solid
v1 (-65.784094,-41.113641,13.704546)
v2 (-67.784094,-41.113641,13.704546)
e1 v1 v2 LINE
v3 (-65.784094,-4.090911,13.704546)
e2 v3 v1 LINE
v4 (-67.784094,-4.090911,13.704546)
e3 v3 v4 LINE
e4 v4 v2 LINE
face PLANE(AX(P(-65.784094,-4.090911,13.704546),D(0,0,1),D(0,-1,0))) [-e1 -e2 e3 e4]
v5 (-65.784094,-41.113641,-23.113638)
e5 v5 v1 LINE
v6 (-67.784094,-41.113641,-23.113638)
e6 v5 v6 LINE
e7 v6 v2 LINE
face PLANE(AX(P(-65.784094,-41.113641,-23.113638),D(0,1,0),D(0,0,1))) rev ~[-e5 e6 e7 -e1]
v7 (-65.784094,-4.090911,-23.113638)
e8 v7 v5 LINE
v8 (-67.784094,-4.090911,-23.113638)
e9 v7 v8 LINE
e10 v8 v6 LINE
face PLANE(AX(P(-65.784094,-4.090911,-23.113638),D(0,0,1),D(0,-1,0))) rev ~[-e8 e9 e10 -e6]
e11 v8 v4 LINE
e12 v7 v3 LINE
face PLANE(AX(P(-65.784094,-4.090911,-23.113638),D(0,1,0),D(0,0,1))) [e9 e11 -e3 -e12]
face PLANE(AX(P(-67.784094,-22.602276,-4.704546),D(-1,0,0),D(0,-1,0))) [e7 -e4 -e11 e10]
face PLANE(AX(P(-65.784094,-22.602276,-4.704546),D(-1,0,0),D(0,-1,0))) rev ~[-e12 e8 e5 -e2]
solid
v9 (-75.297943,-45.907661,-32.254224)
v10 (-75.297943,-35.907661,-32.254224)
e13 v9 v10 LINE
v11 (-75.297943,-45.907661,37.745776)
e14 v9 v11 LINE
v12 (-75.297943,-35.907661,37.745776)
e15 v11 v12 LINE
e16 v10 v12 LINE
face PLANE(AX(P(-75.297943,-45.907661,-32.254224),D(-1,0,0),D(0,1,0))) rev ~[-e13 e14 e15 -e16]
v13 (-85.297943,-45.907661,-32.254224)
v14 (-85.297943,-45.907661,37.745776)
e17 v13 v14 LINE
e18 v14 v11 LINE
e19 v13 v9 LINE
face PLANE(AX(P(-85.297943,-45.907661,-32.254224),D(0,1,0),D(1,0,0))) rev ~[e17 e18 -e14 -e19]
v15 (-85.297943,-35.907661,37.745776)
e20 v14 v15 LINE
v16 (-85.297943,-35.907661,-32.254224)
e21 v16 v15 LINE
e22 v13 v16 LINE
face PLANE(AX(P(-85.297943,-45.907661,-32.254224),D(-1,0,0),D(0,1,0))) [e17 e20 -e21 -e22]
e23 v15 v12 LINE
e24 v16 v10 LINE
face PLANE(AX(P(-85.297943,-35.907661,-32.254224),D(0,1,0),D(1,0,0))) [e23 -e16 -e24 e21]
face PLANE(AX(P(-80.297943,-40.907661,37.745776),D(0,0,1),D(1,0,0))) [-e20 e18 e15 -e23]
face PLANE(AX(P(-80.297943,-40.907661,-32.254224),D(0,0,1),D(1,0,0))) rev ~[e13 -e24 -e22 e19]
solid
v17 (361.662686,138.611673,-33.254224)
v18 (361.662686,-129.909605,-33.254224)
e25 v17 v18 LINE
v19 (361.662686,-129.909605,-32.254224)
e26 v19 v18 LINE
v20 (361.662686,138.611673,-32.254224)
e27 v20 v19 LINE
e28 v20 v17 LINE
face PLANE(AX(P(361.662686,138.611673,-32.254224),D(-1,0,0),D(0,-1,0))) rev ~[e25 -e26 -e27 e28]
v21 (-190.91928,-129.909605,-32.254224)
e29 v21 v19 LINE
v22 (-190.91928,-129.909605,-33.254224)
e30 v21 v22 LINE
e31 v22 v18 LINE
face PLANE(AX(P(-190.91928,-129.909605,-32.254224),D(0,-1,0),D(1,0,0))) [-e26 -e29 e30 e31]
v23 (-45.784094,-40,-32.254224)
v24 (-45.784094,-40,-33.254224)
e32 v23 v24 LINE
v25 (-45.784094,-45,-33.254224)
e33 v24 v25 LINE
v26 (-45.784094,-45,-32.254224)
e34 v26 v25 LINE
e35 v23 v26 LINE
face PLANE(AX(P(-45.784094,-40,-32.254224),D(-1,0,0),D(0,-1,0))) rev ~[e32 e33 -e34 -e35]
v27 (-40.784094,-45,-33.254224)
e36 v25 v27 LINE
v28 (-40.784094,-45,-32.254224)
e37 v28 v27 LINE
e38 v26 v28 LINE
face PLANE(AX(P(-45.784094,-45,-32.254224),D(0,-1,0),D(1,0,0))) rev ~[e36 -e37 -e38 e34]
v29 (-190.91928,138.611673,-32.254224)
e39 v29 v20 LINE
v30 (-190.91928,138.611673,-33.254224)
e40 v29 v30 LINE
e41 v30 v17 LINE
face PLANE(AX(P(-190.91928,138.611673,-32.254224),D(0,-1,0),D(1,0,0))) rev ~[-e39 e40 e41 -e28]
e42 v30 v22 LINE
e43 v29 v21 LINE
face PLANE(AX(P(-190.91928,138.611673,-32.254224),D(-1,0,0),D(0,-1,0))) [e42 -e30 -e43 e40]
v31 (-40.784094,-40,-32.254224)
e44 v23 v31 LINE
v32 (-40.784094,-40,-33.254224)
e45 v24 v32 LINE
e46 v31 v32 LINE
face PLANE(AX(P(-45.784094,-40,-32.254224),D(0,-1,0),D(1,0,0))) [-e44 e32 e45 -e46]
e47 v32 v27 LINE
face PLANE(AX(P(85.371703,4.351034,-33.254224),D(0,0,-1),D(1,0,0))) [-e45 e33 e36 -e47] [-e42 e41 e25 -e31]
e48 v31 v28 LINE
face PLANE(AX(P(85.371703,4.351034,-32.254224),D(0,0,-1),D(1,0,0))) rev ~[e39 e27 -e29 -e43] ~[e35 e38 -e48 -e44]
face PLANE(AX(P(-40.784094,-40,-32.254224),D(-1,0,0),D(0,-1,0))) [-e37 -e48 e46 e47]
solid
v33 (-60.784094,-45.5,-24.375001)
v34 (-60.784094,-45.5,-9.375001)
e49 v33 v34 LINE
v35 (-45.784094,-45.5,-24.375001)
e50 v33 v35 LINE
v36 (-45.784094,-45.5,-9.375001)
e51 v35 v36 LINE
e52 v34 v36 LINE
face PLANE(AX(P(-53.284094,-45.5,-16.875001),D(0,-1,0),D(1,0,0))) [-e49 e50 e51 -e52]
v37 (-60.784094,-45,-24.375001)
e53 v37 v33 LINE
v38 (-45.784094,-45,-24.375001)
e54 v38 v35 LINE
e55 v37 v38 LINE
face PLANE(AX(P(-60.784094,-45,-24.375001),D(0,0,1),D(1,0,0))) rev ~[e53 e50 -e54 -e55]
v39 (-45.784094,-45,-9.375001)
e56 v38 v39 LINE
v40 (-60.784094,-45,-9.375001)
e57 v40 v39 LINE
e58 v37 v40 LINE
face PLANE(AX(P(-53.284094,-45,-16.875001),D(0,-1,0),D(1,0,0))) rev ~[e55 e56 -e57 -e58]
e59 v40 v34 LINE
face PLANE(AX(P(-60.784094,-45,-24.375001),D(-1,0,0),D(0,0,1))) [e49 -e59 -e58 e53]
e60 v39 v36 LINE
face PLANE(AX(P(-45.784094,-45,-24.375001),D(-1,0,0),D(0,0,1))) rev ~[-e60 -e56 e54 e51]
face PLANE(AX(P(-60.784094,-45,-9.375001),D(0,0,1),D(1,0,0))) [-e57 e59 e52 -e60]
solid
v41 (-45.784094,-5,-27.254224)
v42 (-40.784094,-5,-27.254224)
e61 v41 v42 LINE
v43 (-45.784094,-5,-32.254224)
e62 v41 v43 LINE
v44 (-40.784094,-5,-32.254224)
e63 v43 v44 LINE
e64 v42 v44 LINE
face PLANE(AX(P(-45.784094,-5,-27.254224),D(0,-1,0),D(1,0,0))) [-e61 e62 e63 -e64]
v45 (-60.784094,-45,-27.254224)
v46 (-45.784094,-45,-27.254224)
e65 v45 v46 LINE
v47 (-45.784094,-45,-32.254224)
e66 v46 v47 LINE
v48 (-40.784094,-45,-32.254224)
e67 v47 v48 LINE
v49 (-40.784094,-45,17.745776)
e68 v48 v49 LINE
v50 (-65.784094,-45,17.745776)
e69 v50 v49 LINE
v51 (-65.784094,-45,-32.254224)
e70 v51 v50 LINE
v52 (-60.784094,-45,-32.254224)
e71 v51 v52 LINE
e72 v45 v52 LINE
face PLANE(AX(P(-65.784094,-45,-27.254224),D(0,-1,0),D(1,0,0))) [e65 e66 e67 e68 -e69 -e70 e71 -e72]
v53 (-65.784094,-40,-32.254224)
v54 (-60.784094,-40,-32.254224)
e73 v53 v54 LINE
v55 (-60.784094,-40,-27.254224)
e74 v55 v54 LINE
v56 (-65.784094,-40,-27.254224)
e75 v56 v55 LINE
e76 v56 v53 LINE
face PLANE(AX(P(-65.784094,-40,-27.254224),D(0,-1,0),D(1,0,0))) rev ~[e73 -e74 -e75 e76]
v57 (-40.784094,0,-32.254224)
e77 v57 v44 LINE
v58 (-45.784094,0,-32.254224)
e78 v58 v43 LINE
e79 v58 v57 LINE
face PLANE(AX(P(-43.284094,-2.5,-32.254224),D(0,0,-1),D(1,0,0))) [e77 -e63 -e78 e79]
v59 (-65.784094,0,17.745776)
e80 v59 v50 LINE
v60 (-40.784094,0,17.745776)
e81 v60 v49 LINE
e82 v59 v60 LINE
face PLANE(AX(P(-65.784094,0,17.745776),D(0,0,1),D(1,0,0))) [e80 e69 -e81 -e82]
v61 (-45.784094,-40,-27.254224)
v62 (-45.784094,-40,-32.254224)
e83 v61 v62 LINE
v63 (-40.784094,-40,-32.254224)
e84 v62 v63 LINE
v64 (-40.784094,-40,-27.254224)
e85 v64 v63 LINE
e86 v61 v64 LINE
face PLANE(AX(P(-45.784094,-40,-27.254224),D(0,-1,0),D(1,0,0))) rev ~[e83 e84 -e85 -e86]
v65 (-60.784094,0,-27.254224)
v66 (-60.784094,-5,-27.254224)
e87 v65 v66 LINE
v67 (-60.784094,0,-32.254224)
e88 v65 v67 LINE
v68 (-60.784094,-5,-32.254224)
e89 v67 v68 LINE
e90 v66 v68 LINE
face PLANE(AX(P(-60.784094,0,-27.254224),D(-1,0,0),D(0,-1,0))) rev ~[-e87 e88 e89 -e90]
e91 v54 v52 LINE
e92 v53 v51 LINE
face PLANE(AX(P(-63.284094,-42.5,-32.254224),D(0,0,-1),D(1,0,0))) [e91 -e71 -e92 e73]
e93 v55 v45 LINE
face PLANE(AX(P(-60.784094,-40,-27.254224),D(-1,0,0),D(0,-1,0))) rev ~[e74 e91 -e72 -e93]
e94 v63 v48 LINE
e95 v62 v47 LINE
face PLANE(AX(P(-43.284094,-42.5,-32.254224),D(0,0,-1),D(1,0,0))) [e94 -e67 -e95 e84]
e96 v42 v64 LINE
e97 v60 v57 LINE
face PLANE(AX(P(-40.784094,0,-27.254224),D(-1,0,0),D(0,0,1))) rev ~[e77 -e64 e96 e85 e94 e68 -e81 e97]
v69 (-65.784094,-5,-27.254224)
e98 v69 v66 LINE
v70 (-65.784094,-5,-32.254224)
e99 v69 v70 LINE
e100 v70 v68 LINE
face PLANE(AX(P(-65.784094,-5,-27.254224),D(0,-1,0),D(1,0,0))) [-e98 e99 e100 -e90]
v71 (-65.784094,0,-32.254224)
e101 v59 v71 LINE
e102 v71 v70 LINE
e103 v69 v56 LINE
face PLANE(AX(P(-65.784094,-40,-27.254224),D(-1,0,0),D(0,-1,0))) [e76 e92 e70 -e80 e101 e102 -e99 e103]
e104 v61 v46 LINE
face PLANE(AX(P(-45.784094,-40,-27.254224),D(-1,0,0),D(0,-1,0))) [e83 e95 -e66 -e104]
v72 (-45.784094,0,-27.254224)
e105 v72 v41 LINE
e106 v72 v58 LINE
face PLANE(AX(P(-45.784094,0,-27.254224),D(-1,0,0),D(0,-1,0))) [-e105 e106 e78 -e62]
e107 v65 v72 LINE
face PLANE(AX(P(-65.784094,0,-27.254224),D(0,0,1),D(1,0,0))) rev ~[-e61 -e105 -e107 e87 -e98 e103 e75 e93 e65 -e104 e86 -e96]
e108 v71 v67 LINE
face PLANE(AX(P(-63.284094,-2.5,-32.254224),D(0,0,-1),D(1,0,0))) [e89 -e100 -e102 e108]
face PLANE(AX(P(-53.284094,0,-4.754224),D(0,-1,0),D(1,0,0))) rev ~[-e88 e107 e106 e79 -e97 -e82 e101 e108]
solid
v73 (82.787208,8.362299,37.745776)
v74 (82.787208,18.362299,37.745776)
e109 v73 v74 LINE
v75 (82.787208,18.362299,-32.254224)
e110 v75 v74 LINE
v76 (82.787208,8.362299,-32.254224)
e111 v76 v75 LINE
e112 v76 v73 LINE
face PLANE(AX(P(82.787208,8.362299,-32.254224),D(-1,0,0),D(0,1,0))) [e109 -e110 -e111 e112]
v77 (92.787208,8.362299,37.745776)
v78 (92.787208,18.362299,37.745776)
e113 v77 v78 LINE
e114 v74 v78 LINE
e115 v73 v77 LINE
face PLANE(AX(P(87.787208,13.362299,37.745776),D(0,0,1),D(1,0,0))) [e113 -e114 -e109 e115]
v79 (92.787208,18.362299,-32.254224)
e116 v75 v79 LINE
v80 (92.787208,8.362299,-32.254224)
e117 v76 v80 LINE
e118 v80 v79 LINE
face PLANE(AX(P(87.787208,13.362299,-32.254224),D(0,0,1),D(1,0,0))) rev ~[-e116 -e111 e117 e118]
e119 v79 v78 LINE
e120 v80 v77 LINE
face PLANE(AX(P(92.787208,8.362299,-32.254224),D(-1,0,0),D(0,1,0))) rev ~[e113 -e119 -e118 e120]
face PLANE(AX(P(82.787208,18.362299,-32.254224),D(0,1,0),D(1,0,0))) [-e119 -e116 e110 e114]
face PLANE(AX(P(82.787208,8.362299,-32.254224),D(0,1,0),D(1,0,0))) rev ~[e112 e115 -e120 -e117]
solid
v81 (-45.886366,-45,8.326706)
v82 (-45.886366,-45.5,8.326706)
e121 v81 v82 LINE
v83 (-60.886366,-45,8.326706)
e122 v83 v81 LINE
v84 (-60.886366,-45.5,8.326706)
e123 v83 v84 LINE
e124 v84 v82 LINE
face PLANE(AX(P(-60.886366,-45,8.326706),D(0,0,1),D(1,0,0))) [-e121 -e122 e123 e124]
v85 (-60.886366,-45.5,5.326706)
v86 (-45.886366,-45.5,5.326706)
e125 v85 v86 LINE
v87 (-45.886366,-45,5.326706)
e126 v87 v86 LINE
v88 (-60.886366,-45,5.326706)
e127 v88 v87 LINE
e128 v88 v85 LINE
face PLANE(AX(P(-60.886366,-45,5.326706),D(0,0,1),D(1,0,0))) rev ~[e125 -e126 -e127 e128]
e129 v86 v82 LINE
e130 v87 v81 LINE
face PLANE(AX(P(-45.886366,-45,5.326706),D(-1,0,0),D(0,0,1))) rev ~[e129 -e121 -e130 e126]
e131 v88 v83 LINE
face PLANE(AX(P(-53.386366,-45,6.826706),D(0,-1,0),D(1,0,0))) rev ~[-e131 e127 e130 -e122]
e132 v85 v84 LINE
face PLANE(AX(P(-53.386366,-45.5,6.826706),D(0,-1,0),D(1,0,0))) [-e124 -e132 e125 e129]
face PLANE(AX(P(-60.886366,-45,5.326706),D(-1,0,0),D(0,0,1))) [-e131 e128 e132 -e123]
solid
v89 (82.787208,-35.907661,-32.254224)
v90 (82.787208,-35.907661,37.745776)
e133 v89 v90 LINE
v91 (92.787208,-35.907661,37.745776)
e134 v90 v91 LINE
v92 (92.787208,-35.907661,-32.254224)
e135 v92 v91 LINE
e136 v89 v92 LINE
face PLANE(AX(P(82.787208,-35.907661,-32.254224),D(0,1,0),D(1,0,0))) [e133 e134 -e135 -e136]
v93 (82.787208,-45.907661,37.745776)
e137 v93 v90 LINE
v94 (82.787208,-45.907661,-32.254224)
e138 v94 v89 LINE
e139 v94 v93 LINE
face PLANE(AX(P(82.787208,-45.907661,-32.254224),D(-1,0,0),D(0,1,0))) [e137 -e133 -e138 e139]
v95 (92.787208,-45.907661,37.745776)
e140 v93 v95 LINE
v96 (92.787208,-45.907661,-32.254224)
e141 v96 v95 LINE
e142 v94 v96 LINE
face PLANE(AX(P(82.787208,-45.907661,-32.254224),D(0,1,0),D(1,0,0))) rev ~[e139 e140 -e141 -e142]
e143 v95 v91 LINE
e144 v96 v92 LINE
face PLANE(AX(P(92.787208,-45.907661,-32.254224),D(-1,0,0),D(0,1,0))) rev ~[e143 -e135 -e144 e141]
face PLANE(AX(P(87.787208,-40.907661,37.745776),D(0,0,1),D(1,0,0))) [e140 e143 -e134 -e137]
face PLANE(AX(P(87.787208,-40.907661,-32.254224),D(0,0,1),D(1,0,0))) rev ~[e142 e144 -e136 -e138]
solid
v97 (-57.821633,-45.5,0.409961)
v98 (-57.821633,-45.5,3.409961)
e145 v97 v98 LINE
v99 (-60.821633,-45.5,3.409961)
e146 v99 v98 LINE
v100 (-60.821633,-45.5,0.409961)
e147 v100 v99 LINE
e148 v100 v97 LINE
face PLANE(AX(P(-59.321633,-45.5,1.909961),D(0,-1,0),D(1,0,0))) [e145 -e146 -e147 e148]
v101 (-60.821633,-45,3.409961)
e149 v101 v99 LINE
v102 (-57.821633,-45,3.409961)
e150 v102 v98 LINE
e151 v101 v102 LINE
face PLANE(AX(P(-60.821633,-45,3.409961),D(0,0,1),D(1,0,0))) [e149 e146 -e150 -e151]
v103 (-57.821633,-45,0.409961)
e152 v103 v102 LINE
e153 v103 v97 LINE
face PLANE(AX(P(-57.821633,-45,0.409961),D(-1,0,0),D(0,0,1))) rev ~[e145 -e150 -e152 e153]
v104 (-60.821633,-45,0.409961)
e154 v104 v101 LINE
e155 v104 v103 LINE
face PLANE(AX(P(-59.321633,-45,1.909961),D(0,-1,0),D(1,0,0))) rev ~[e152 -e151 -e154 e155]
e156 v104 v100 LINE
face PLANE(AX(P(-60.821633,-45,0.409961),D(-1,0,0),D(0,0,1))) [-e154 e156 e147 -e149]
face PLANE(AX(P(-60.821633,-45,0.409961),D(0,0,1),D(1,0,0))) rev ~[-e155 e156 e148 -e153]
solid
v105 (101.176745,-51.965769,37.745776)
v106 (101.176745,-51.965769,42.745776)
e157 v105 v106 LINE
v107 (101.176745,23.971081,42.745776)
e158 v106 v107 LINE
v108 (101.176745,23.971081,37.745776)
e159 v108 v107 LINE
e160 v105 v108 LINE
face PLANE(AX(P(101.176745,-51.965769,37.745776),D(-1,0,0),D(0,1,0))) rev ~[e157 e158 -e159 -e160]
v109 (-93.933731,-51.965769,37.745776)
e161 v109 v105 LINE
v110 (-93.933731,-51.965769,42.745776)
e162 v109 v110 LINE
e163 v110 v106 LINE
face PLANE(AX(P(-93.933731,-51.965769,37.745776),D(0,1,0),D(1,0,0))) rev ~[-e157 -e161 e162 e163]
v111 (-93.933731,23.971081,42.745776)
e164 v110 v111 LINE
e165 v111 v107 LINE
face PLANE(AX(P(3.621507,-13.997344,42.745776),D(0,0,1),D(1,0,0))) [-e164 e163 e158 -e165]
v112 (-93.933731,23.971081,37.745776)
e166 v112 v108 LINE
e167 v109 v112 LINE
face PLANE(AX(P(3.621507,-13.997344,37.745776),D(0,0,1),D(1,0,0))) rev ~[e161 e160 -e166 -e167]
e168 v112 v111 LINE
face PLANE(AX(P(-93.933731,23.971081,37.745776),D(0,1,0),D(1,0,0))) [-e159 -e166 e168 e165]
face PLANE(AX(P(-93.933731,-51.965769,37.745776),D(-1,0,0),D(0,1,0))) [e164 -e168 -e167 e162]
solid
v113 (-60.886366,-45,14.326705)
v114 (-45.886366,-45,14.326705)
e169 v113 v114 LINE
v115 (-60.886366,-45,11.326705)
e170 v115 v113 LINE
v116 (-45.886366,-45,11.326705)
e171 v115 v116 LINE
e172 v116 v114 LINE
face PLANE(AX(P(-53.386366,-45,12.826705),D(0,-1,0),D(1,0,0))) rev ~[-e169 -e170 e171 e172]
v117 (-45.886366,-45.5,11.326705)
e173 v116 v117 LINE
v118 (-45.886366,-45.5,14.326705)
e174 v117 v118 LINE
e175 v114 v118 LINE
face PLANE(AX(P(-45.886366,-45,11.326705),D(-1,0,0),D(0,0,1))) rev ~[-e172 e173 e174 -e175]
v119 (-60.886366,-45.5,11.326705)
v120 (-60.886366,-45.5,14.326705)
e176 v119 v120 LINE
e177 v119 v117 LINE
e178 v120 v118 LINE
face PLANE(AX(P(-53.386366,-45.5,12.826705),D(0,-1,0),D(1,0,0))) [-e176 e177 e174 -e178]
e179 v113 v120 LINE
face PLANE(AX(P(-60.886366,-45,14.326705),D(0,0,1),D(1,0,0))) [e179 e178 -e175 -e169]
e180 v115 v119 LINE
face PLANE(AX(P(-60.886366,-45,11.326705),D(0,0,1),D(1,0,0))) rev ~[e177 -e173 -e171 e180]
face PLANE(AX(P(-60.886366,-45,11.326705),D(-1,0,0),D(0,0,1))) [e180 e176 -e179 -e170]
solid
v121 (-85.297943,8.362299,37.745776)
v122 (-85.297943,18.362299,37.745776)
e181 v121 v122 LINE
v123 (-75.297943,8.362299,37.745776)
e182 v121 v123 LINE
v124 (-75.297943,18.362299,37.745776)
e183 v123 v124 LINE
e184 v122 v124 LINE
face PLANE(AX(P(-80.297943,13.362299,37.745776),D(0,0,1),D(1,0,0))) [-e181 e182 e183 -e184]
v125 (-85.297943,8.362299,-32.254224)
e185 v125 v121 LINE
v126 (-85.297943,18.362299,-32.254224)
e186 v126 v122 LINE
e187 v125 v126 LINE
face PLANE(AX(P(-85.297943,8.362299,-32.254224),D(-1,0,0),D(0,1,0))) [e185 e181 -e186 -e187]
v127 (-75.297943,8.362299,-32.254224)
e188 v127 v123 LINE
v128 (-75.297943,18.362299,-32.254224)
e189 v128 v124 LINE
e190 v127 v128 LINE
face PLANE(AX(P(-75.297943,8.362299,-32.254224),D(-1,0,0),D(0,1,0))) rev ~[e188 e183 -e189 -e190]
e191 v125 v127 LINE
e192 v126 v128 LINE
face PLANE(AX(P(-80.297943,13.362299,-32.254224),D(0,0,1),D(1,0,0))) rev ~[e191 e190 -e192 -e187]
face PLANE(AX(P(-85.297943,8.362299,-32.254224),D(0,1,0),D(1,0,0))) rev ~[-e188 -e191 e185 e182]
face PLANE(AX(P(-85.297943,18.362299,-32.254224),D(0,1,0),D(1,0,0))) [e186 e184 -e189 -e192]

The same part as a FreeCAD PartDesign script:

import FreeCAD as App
import Part
import Sketcher
from FreeCAD import Vector
Q = App.Units.Quantity

doc = App.newDocument("Part")
body = doc.addObject("PartDesign::Body", "Body")

# Sketch on XZ plane
sketch1 = body.newObject("Sketcher::SketchObject", "Sketch")
sketch1.AttachmentSupport = (doc.getObject("XZ_Plane"), [""])
sketch1.MapMode = "FlatFace"
sketch1.addGeometry(Part.LineSegment(Vector(-66, 18, 0), Vector(-66, -27, 0)), False)
sketch1.addGeometry(Part.LineSegment(Vector(-66, -27, 0), Vector(-41, -27, 0)), False)
sketch1.addGeometry(Part.LineSegment(Vector(-41, -27, 0), Vector(-41, 18, 0)), False)
sketch1.addGeometry(Part.LineSegment(Vector(-41, 18, 0), Vector(-66, 18, 0)), False)
sketch1.addConstraint(Sketcher.Constraint("Coincident", 0, 2, 1, 1))
sketch1.addConstraint(Sketcher.Constraint("Coincident", 1, 2, 2, 1))
sketch1.addConstraint(Sketcher.Constraint("Coincident", 2, 2, 3, 1))
sketch1.addConstraint(Sketcher.Constraint("Coincident", 3, 2, 0, 1))
sketch1.addConstraint(Sketcher.Constraint("Vertical", 0))
sketch1.addConstraint(Sketcher.Constraint("Horizontal", 1))
sketch1.addConstraint(Sketcher.Constraint("Vertical", 2))
sketch1.addConstraint(Sketcher.Constraint("Horizontal", 3))
sketch1.addConstraint(Sketcher.Constraint("DistanceX", 1, 1, 1, 2, Q("25 mm")))
sketch1.addConstraint(Sketcher.Constraint("DistanceY", 0, 2, 0, 1, Q("45 mm")))
sketch1.addConstraint(Sketcher.Constraint("DistanceX", 0, 2, -1, 1, Q("65.784094 mm")))
sketch1.addConstraint(Sketcher.Constraint("DistanceY", 0, 2, -1, 1, Q("27.254224 mm")))
pad1 = body.newObject("PartDesign::Pad", "Pad")
pad1.Profile = sketch1
pad1.Length = 45

# Sketch on XY plane
sketch2 = body.newObject("Sketcher::SketchObject", "Sketch001")
sketch2.AttachmentSupport = (doc.getObject("XY_Plane"), [""])
sketch2.MapMode = "FlatFace"
sketch2.AttachmentOffset = App.Placement(Vector(0, 0, -27.254224), App.Rotation())
sketch2.addGeometry(Part.LineSegment(Vector(-65.8, -45, 0), Vector(-65.8, -40, 0)), False)
sketch2.addGeometry(Part.LineSegment(Vector(-65.8, -40, 0), Vector(-60.8, -40, 0)), False)
sketch2.addGeometry(Part.LineSegment(Vector(-60.8, -40, 0), Vector(-60.8, -45, 0)), False)
sketch2.addGeometry(Part.LineSegment(Vector(-60.8, -45, 0), Vector(-65.8, -45, 0)), False)
sketch2.addGeometry(Part.LineSegment(Vector(-45.8, -45, 0), Vector(-45.8, -40, 0)), False)
sketch2.addGeometry(Part.LineSegment(Vector(-45.8, -40, 0), Vector(-40.8, -40, 0)), False)
sketch2.addGeometry(Part.LineSegment(Vector(-40.8, -40, 0), Vector(-40.8, -45, 0)), False)
sketch2.addGeometry(Part.LineSegment(Vector(-40.8, -45, 0), Vector(-45.8, -45, 0)), False)
sketch2.addGeometry(Part.LineSegment(Vector(-65.8, -5, 0), Vector(-65.8, 0, 0)), False)
sketch2.addGeometry(Part.LineSegment(Vector(-65.8, 0, 0), Vector(-60.8, 0, 0)), False)
sketch2.addGeometry(Part.LineSegment(Vector(-60.8, 0, 0), Vector(-60.8, -5, 0)), False)
sketch2.addGeometry(Part.LineSegment(Vector(-60.8, -5, 0), Vector(-65.8, -5, 0)), False)
sketch2.addGeometry(Part.LineSegment(Vector(-45.8, -5, 0), Vector(-45.8, 0, 0)), False)
sketch2.addGeometry(Part.LineSegment(Vector(-45.8, 0, 0), Vector(-40.8, 0, 0)), False)
sketch2.addGeometry(Part.LineSegment(Vector(-40.8, 0, 0), Vector(-40.8, -5, 0)), False)
sketch2.addGeometry(Part.LineSegment(Vector(-40.8, -5, 0), Vector(-45.8, -5, 0)), False)
sketch2.addConstraint(Sketcher.Constraint("Coincident", 0, 2, 1, 1))
sketch2.addConstraint(Sketcher.Constraint("Coincident", 1, 2, 2, 1))
sketch2.addConstraint(Sketcher.Constraint("Coincident", 2, 2, 3, 1))
sketch2.addConstraint(Sketcher.Constraint("Coincident", 3, 2, 0, 1))
sketch2.addConstraint(Sketcher.Constraint("Coincident", 4, 2, 5, 1))
sketch2.addConstraint(Sketcher.Constraint("Coincident", 5, 2, 6, 1))
sketch2.addConstraint(Sketcher.Constraint("Coincident", 6, 2, 7, 1))
sketch2.addConstraint(Sketcher.Constraint("Coincident", 7, 2, 4, 1))
sketch2.addConstraint(Sketcher.Constraint("Coincident", 8, 2, 9, 1))
sketch2.addConstraint(Sketcher.Constraint("Coincident", 9, 2, 10, 1))
sketch2.addConstraint(Sketcher.Constraint("Coincident", 10, 2, 11, 1))
sketch2.addConstraint(Sketcher.Constraint("Coincident", 11, 2, 8, 1))
sketch2.addConstraint(Sketcher.Constraint("Coincident", 12, 2, 13, 1))
sketch2.addConstraint(Sketcher.Constraint("Coincident", 13, 2, 14, 1))
sketch2.addConstraint(Sketcher.Constraint("Coincident", 14, 2, 15, 1))
sketch2.addConstraint(Sketcher.Constraint("Coincident", 15, 2, 12, 1))
sketch2.addConstraint(Sketcher.Constraint("Vertical", 0))
sketch2.addConstraint(Sketcher.Constraint("Horizontal", 1))
sketch2.addConstraint(Sketcher.Constraint("Vertical", 2))
sketch2.addConstraint(Sketcher.Constraint("Horizontal", 3))
sketch2.addConstraint(Sketcher.Constraint("Vertical", 4))
sketch2.addConstraint(Sketcher.Constraint("Horizontal", 5))
sketch2.addConstraint(Sketcher.Constraint("Vertical", 6))
sketch2.addConstraint(Sketcher.Constraint("Horizontal", 7))
sketch2.addConstraint(Sketcher.Constraint("Vertical", 8))
sketch2.addConstraint(Sketcher.Constraint("Horizontal", 9))
sketch2.addConstraint(Sketcher.Constraint("Vertical", 10))
sketch2.addConstraint(Sketcher.Constraint("Horizontal", 11))
sketch2.addConstraint(Sketcher.Constraint("Vertical", 12))
sketch2.addConstraint(Sketcher.Constraint("Horizontal", 13))
sketch2.addConstraint(Sketcher.Constraint("Vertical", 14))
sketch2.addConstraint(Sketcher.Constraint("Horizontal", 15))
sketch2.addConstraint(Sketcher.Constraint("PointOnObject", 8, 2, -1))
sketch2.addConstraint(Sketcher.Constraint("PointOnObject", 12, 2, -1))
sketch2.addConstraint(Sketcher.Constraint("Horizontal", 1, 2, 4, 2))
sketch2.addConstraint(Sketcher.Constraint("Horizontal", 3, 2, 6, 2))
sketch2.addConstraint(Sketcher.Constraint("Horizontal", 11, 2, 14, 2))
sketch2.addConstraint(Sketcher.Constraint("Vertical", 3, 2, 8, 2))
sketch2.addConstraint(Sketcher.Constraint("Vertical", 2, 2, 9, 2))
sketch2.addConstraint(Sketcher.Constraint("Vertical", 7, 2, 12, 2))
sketch2.addConstraint(Sketcher.Constraint("Vertical", 6, 2, 13, 2))
sketch2.addConstraint(Sketcher.Constraint("Equal", 3, 5))
sketch2.addConstraint(Sketcher.Constraint("Equal", 15, 0))
sketch2.addConstraint(Sketcher.Constraint("Equal", 6, 8))
sketch2.addConstraint(Sketcher.Constraint("DistanceX", 1, 1, 1, 2, Q("5 mm")))
sketch2.addConstraint(Sketcher.Constraint("DistanceY", 0, 2, -1, 1, Q("40 mm")))
sketch2.addConstraint(Sketcher.Constraint("DistanceX", 1, 2, 4, 2, Q("15 mm")))
sketch2.addConstraint(Sketcher.Constraint("DistanceX", 0, 2, -1, 1, Q("65.784094 mm")))
pad2 = body.newObject("PartDesign::Pad", "Pad001")
pad2.Profile = sketch2
pad2.Length = 5
pad2.Reversed = True
body2 = doc.addObject("PartDesign::Body", "Body001")

# Sketch on YZ plane
sketch3 = body2.newObject("Sketcher::SketchObject", "Sketch002")
sketch3.AttachmentSupport = (doc.getObject("YZ_Plane001"), [""])
sketch3.MapMode = "FlatFace"
sketch3.AttachmentOffset = App.Placement(Vector(0, 0, -65.784094), App.Rotation())
sketch3.addGeometry(Part.LineSegment(Vector(-4, 14, 0), Vector(-4, -23, 0)), False)
sketch3.addGeometry(Part.LineSegment(Vector(-4, -23, 0), Vector(-41, -23, 0)), False)
sketch3.addGeometry(Part.LineSegment(Vector(-41, -23, 0), Vector(-41, 14, 0)), False)
sketch3.addGeometry(Part.LineSegment(Vector(-41, 14, 0), Vector(-4, 14, 0)), False)
sketch3.addConstraint(Sketcher.Constraint("Coincident", 0, 2, 1, 1))
sketch3.addConstraint(Sketcher.Constraint("Coincident", 1, 2, 2, 1))
sketch3.addConstraint(Sketcher.Constraint("Coincident", 2, 2, 3, 1))
sketch3.addConstraint(Sketcher.Constraint("Coincident", 3, 2, 0, 1))
sketch3.addConstraint(Sketcher.Constraint("Vertical", 0))
sketch3.addConstraint(Sketcher.Constraint("Horizontal", 1))
sketch3.addConstraint(Sketcher.Constraint("Vertical", 2))
sketch3.addConstraint(Sketcher.Constraint("Horizontal", 3))
sketch3.addConstraint(Sketcher.Constraint("DistanceX", 1, 2, 1, 1, Q("37.02273 mm")))
sketch3.addConstraint(Sketcher.Constraint("DistanceY", 0, 2, 0, 1, Q("36.818184 mm")))
sketch3.addConstraint(Sketcher.Constraint("DistanceX", 0, 2, -1, 1, Q("4.090911 mm")))
sketch3.addConstraint(Sketcher.Constraint("DistanceY", 0, 2, -1, 1, Q("23.113638 mm")))
pad3 = body2.newObject("PartDesign::Pad", "Pad002")
pad3.Profile = sketch3
pad3.Length = 2
pad3.Reversed = True
body3 = doc.addObject("PartDesign::Body", "Body002")
body3.AllowCompound = True

# Sketch on XZ plane
sketch4 = body3.newObject("Sketcher::SketchObject", "Sketch003")
sketch4.AttachmentSupport = (doc.getObject("XZ_Plane002"), [""])
sketch4.MapMode = "FlatFace"
sketch4.AttachmentOffset = App.Placement(Vector(0, 0, 45), App.Rotation())
sketch4.addGeometry(Part.LineSegment(Vector(-60.9, 14.3, 0), Vector(-60.9, 11.3, 0)), False)
sketch4.addGeometry(Part.LineSegment(Vector(-60.9, 11.3, 0), Vector(-45.9, 11.3, 0)), False)
sketch4.addGeometry(Part.LineSegment(Vector(-45.9, 11.3, 0), Vector(-45.9, 14.3, 0)), False)
sketch4.addGeometry(Part.LineSegment(Vector(-45.9, 14.3, 0), Vector(-60.9, 14.3, 0)), False)
sketch4.addGeometry(Part.LineSegment(Vector(-60.9, 8.3, 0), Vector(-60.9, 5.3, 0)), False)
sketch4.addGeometry(Part.LineSegment(Vector(-60.9, 5.3, 0), Vector(-45.9, 5.3, 0)), False)
sketch4.addGeometry(Part.LineSegment(Vector(-45.9, 5.3, 0), Vector(-45.9, 8.3, 0)), False)
sketch4.addGeometry(Part.LineSegment(Vector(-45.9, 8.3, 0), Vector(-60.9, 8.3, 0)), False)
sketch4.addConstraint(Sketcher.Constraint("Coincident", 0, 2, 1, 1))
sketch4.addConstraint(Sketcher.Constraint("Coincident", 1, 2, 2, 1))
sketch4.addConstraint(Sketcher.Constraint("Coincident", 2, 2, 3, 1))
sketch4.addConstraint(Sketcher.Constraint("Coincident", 3, 2, 0, 1))
sketch4.addConstraint(Sketcher.Constraint("Coincident", 4, 2, 5, 1))
sketch4.addConstraint(Sketcher.Constraint("Coincident", 5, 2, 6, 1))
sketch4.addConstraint(Sketcher.Constraint("Coincident", 6, 2, 7, 1))
sketch4.addConstraint(Sketcher.Constraint("Coincident", 7, 2, 4, 1))
sketch4.addConstraint(Sketcher.Constraint("Vertical", 0))
sketch4.addConstraint(Sketcher.Constraint("Horizontal", 1))
sketch4.addConstraint(Sketcher.Constraint("Vertical", 2))
sketch4.addConstraint(Sketcher.Constraint("Horizontal", 3))
sketch4.addConstraint(Sketcher.Constraint("Vertical", 4))
sketch4.addConstraint(Sketcher.Constraint("Horizontal", 5))
sketch4.addConstraint(Sketcher.Constraint("Vertical", 6))
sketch4.addConstraint(Sketcher.Constraint("Horizontal", 7))
sketch4.addConstraint(Sketcher.Constraint("Vertical", 3, 2, 4, 2))
sketch4.addConstraint(Sketcher.Constraint("Vertical", 2, 2, 5, 2))
sketch4.addConstraint(Sketcher.Constraint("Equal", 2, 4))
sketch4.addConstraint(Sketcher.Constraint("DistanceX", 1, 1, 1, 2, Q("15 mm")))
sketch4.addConstraint(Sketcher.Constraint("DistanceY", 0, 2, 0, 1, Q("3 mm")))
sketch4.addConstraint(Sketcher.Constraint("DistanceY", 4, 2, 0, 2, Q("5.999999 mm")))
sketch4.addConstraint(Sketcher.Constraint("DistanceX", 0, 2, -1, 1, Q("60.886366 mm")))
sketch4.addConstraint(Sketcher.Constraint("DistanceY", -1, 1, 0, 2, Q("11.326705 mm")))
pad4 = body3.newObject("PartDesign::Pad", "Pad003")
pad4.Profile = sketch4
pad4.Length = 0.5
body4 = doc.addObject("PartDesign::Body", "Body003")

# Sketch on XZ plane
sketch5 = body4.newObject("Sketcher::SketchObject", "Sketch004")
sketch5.AttachmentSupport = (doc.getObject("XZ_Plane003"), [""])
sketch5.MapMode = "FlatFace"
sketch5.AttachmentOffset = App.Placement(Vector(0, 0, 45), App.Rotation())
sketch5.addGeometry(Part.LineSegment(Vector(-61, -9, 0), Vector(-61, -24, 0)), False)
sketch5.addGeometry(Part.LineSegment(Vector(-61, -24, 0), Vector(-46, -24, 0)), False)
sketch5.addGeometry(Part.LineSegment(Vector(-46, -24, 0), Vector(-46, -9, 0)), False)
sketch5.addGeometry(Part.LineSegment(Vector(-46, -9, 0), Vector(-61, -9, 0)), False)
sketch5.addConstraint(Sketcher.Constraint("Coincident", 0, 2, 1, 1))
sketch5.addConstraint(Sketcher.Constraint("Coincident", 1, 2, 2, 1))
sketch5.addConstraint(Sketcher.Constraint("Coincident", 2, 2, 3, 1))
sketch5.addConstraint(Sketcher.Constraint("Coincident", 3, 2, 0, 1))
sketch5.addConstraint(Sketcher.Constraint("Vertical", 0))
sketch5.addConstraint(Sketcher.Constraint("Horizontal", 1))
sketch5.addConstraint(Sketcher.Constraint("Vertical", 2))
sketch5.addConstraint(Sketcher.Constraint("Horizontal", 3))
sketch5.addConstraint(Sketcher.Constraint("Equal", 3, 0))
sketch5.addConstraint(Sketcher.Constraint("DistanceX", 1, 1, 1, 2, Q("15 mm")))
sketch5.addConstraint(Sketcher.Constraint("DistanceY", 0, 2, -1, 1, Q("24.375001 mm")))
sketch5.addConstraint(Sketcher.Constraint("DistanceX", 0, 2, -1, 1, Q("60.784094 mm")))
pad5 = body4.newObject("PartDesign::Pad", "Pad004")
pad5.Profile = sketch5
pad5.Length = 0.5
body5 = doc.addObject("PartDesign::Body", "Body004")

# Sketch on XZ plane
sketch6 = body5.newObject("Sketcher::SketchObject", "Sketch005")
sketch6.AttachmentSupport = (doc.getObject("XZ_Plane004"), [""])
sketch6.MapMode = "FlatFace"
sketch6.AttachmentOffset = App.Placement(Vector(0, 0, 45), App.Rotation())
sketch6.addGeometry(Part.LineSegment(Vector(-60.8, 3.4, 0), Vector(-60.8, 0.4, 0)), False)
sketch6.addGeometry(Part.LineSegment(Vector(-60.8, 0.4, 0), Vector(-57.8, 0.4, 0)), False)
sketch6.addGeometry(Part.LineSegment(Vector(-57.8, 0.4, 0), Vector(-57.8, 3.4, 0)), False)
sketch6.addGeometry(Part.LineSegment(Vector(-57.8, 3.4, 0), Vector(-60.8, 3.4, 0)), False)
sketch6.addConstraint(Sketcher.Constraint("Coincident", 0, 2, 1, 1))
sketch6.addConstraint(Sketcher.Constraint("Coincident", 1, 2, 2, 1))
sketch6.addConstraint(Sketcher.Constraint("Coincident", 2, 2, 3, 1))
sketch6.addConstraint(Sketcher.Constraint("Coincident", 3, 2, 0, 1))
sketch6.addConstraint(Sketcher.Constraint("Vertical", 0))
sketch6.addConstraint(Sketcher.Constraint("Horizontal", 1))
sketch6.addConstraint(Sketcher.Constraint("Vertical", 2))
sketch6.addConstraint(Sketcher.Constraint("Horizontal", 3))
sketch6.addConstraint(Sketcher.Constraint("Equal", 3, 0))
sketch6.addConstraint(Sketcher.Constraint("DistanceX", 1, 1, 1, 2, Q("3 mm")))
sketch6.addConstraint(Sketcher.Constraint("DistanceY", -1, 1, 0, 2, Q("0.409961 mm")))
sketch6.addConstraint(Sketcher.Constraint("DistanceX", 0, 2, -1, 1, Q("60.821633 mm")))
pad6 = body5.newObject("PartDesign::Pad", "Pad005")
pad6.Profile = sketch6
pad6.Length = 0.5
body6 = doc.addObject("PartDesign::Body", "Body005")

# Sketch on XY plane
sketch7 = body6.newObject("Sketcher::SketchObject", "Sketch006")
sketch7.AttachmentSupport = (doc.getObject("XY_Plane005"), [""])
sketch7.MapMode = "FlatFace"
sketch7.AttachmentOffset = App.Placement(Vector(0, 0, -32.254224), App.Rotation())
sketch7.addGeometry(Part.LineSegment(Vector(-191, -130, 0), Vector(-191, 139, 0)), False)
sketch7.addGeometry(Part.LineSegment(Vector(-191, 139, 0), Vector(362, 139, 0)), False)
sketch7.addGeometry(Part.LineSegment(Vector(362, 139, 0), Vector(362, -130, 0)), False)
sketch7.addGeometry(Part.LineSegment(Vector(362, -130, 0), Vector(-191, -130, 0)), False)
sketch7.addGeometry(Part.LineSegment(Vector(-41, -40, 0), Vector(-46, -40, 0)), False)
sketch7.addGeometry(Part.LineSegment(Vector(-46, -40, 0), Vector(-46, -45, 0)), False)
sketch7.addGeometry(Part.LineSegment(Vector(-46, -45, 0), Vector(-41, -45, 0)), False)
sketch7.addGeometry(Part.LineSegment(Vector(-41, -45, 0), Vector(-41, -40, 0)), False)
sketch7.addConstraint(Sketcher.Constraint("Coincident", 0, 2, 1, 1))
sketch7.addConstraint(Sketcher.Constraint("Coincident", 1, 2, 2, 1))
sketch7.addConstraint(Sketcher.Constraint("Coincident", 2, 2, 3, 1))
sketch7.addConstraint(Sketcher.Constraint("Coincident", 3, 2, 0, 1))
sketch7.addConstraint(Sketcher.Constraint("Coincident", 4, 2, 5, 1))
sketch7.addConstraint(Sketcher.Constraint("Coincident", 5, 2, 6, 1))
sketch7.addConstraint(Sketcher.Constraint("Coincident", 6, 2, 7, 1))
sketch7.addConstraint(Sketcher.Constraint("Coincident", 7, 2, 4, 1))
sketch7.addConstraint(Sketcher.Constraint("Vertical", 0))
sketch7.addConstraint(Sketcher.Constraint("Horizontal", 1))
sketch7.addConstraint(Sketcher.Constraint("Vertical", 2))
sketch7.addConstraint(Sketcher.Constraint("Horizontal", 3))
sketch7.addConstraint(Sketcher.Constraint("Horizontal", 4))
sketch7.addConstraint(Sketcher.Constraint("Vertical", 5))
sketch7.addConstraint(Sketcher.Constraint("Horizontal", 6))
sketch7.addConstraint(Sketcher.Constraint("Vertical", 7))
sketch7.addConstraint(Sketcher.Constraint("Equal", 6, 5))
sketch7.addConstraint(Sketcher.Constraint("DistanceX", 4, 2, 4, 1, Q("5 mm")))
sketch7.addConstraint(Sketcher.Constraint("DistanceY", 4, 2, -1, 1, Q("40 mm")))
sketch7.addConstraint(Sketcher.Constraint("DistanceY", 0, 1, 0, 2, Q("268.521279 mm")))
sketch7.addConstraint(Sketcher.Constraint("DistanceX", 1, 1, 1, 2, Q("552.581966 mm")))
sketch7.addConstraint(Sketcher.Constraint("DistanceX", 0, 2, -1, 1, Q("190.91928 mm")))
sketch7.addConstraint(Sketcher.Constraint("DistanceX", 4, 2, 2, 2, Q("407.44678 mm")))
sketch7.addConstraint(Sketcher.Constraint("DistanceY", -1, 1, 0, 2, Q("138.611673 mm")))
pad7 = body6.newObject("PartDesign::Pad", "Pad006")
pad7.Profile = sketch7
pad7.Length = 1
pad7.Reversed = True
body7 = doc.addObject("PartDesign::Body", "Body006")
body7.AllowCompound = True

# Sketch on XY plane
sketch8 = body7.newObject("Sketcher::SketchObject", "Sketch007")
sketch8.AttachmentSupport = (doc.getObject("XY_Plane006"), [""])
sketch8.MapMode = "FlatFace"
sketch8.AttachmentOffset = App.Placement(Vector(0, 0, -32.254224), App.Rotation())
sketch8.addGeometry(Part.LineSegment(Vector(-85, 18, 0), Vector(-85, 8, 0)), False)
sketch8.addGeometry(Part.LineSegment(Vector(-85, 8, 0), Vector(-75, 8, 0)), False)
sketch8.addGeometry(Part.LineSegment(Vector(-75, 8, 0), Vector(-75, 18, 0)), False)
sketch8.addGeometry(Part.LineSegment(Vector(-75, 18, 0), Vector(-85, 18, 0)), False)
sketch8.addGeometry(Part.LineSegment(Vector(83, 18, 0), Vector(83, 8, 0)), False)
sketch8.addGeometry(Part.LineSegment(Vector(83, 8, 0), Vector(93, 8, 0)), False)
sketch8.addGeometry(Part.LineSegment(Vector(93, 8, 0), Vector(93, 18, 0)), False)
sketch8.addGeometry(Part.LineSegment(Vector(93, 18, 0), Vector(83, 18, 0)), False)
sketch8.addGeometry(Part.LineSegment(Vector(-85, -36, 0), Vector(-85, -46, 0)), False)
sketch8.addGeometry(Part.LineSegment(Vector(-85, -46, 0), Vector(-75, -46, 0)), False)
sketch8.addGeometry(Part.LineSegment(Vector(-75, -46, 0), Vector(-75, -36, 0)), False)
sketch8.addGeometry(Part.LineSegment(Vector(-75, -36, 0), Vector(-85, -36, 0)), False)
sketch8.addGeometry(Part.LineSegment(Vector(83, -36, 0), Vector(83, -46, 0)), False)
sketch8.addGeometry(Part.LineSegment(Vector(83, -46, 0), Vector(93, -46, 0)), False)
sketch8.addGeometry(Part.LineSegment(Vector(93, -46, 0), Vector(93, -36, 0)), False)
sketch8.addGeometry(Part.LineSegment(Vector(93, -36, 0), Vector(83, -36, 0)), False)
sketch8.addConstraint(Sketcher.Constraint("Coincident", 0, 2, 1, 1))
sketch8.addConstraint(Sketcher.Constraint("Coincident", 1, 2, 2, 1))
sketch8.addConstraint(Sketcher.Constraint("Coincident", 2, 2, 3, 1))
sketch8.addConstraint(Sketcher.Constraint("Coincident", 3, 2, 0, 1))
sketch8.addConstraint(Sketcher.Constraint("Coincident", 4, 2, 5, 1))
sketch8.addConstraint(Sketcher.Constraint("Coincident", 5, 2, 6, 1))
sketch8.addConstraint(Sketcher.Constraint("Coincident", 6, 2, 7, 1))
sketch8.addConstraint(Sketcher.Constraint("Coincident", 7, 2, 4, 1))
sketch8.addConstraint(Sketcher.Constraint("Coincident", 8, 2, 9, 1))
sketch8.addConstraint(Sketcher.Constraint("Coincident", 9, 2, 10, 1))
sketch8.addConstraint(Sketcher.Constraint("Coincident", 10, 2, 11, 1))
sketch8.addConstraint(Sketcher.Constraint("Coincident", 11, 2, 8, 1))
sketch8.addConstraint(Sketcher.Constraint("Coincident", 12, 2, 13, 1))
sketch8.addConstraint(Sketcher.Constraint("Coincident", 13, 2, 14, 1))
sketch8.addConstraint(Sketcher.Constraint("Coincident", 14, 2, 15, 1))
sketch8.addConstraint(Sketcher.Constraint("Coincident", 15, 2, 12, 1))
sketch8.addConstraint(Sketcher.Constraint("Vertical", 0))
sketch8.addConstraint(Sketcher.Constraint("Horizontal", 1))
sketch8.addConstraint(Sketcher.Constraint("Vertical", 2))
sketch8.addConstraint(Sketcher.Constraint("Horizontal", 3))
sketch8.addConstraint(Sketcher.Constraint("Vertical", 4))
sketch8.addConstraint(Sketcher.Constraint("Horizontal", 5))
sketch8.addConstraint(Sketcher.Constraint("Vertical", 6))
sketch8.addConstraint(Sketcher.Constraint("Horizontal", 7))
sketch8.addConstraint(Sketcher.Constraint("Vertical", 8))
sketch8.addConstraint(Sketcher.Constraint("Horizontal", 9))
sketch8.addConstraint(Sketcher.Constraint("Vertical", 10))
sketch8.addConstraint(Sketcher.Constraint("Horizontal", 11))
sketch8.addConstraint(Sketcher.Constraint("Vertical", 12))
sketch8.addConstraint(Sketcher.Constraint("Horizontal", 13))
sketch8.addConstraint(Sketcher.Constraint("Vertical", 14))
sketch8.addConstraint(Sketcher.Constraint("Horizontal", 15))
sketch8.addConstraint(Sketcher.Constraint("Horizontal", 1, 2, 4, 2))
sketch8.addConstraint(Sketcher.Constraint("Horizontal", 3, 2, 6, 2))
sketch8.addConstraint(Sketcher.Constraint("Horizontal", 9, 2, 12, 2))
sketch8.addConstraint(Sketcher.Constraint("Horizontal", 11, 2, 14, 2))
sketch8.addConstraint(Sketcher.Constraint("Vertical", 3, 2, 8, 2))
sketch8.addConstraint(Sketcher.Constraint("Vertical", 2, 2, 9, 2))
sketch8.addConstraint(Sketcher.Constraint("Vertical", 7, 2, 12, 2))
sketch8.addConstraint(Sketcher.Constraint("Vertical", 6, 2, 13, 2))
sketch8.addConstraint(Sketcher.Constraint("Equal", 3, 5))
sketch8.addConstraint(Sketcher.Constraint("Equal", 15, 0))
sketch8.addConstraint(Sketcher.Constraint("Equal", 6, 8))
sketch8.addConstraint(Sketcher.Constraint("DistanceX", 1, 1, 1, 2, Q("10 mm")))
sketch8.addConstraint(Sketcher.Constraint("DistanceY", -1, 1, 0, 2, Q("8.362299 mm")))
sketch8.addConstraint(Sketcher.Constraint("DistanceX", -1, 1, 4, 2, Q("82.787208 mm")))
sketch8.addConstraint(Sketcher.Constraint("DistanceY", 8, 2, -1, 1, Q("45.907661 mm")))
sketch8.addConstraint(Sketcher.Constraint("DistanceX", 1, 2, 4, 2, Q("158.085151 mm")))
pad8 = body7.newObject("PartDesign::Pad", "Pad007")
pad8.Profile = sketch8
pad8.Length = 70
body8 = doc.addObject("PartDesign::Body", "Body007")

# Sketch on XY plane
sketch9 = body8.newObject("Sketcher::SketchObject", "Sketch008")
sketch9.AttachmentSupport = (doc.getObject("XY_Plane007"), [""])
sketch9.MapMode = "FlatFace"
sketch9.AttachmentOffset = App.Placement(Vector(0, 0, 37.745776), App.Rotation())
sketch9.addGeometry(Part.LineSegment(Vector(-94, 24, 0), Vector(-94, -52, 0)), False)
sketch9.addGeometry(Part.LineSegment(Vector(-94, -52, 0), Vector(101, -52, 0)), False)
sketch9.addGeometry(Part.LineSegment(Vector(101, -52, 0), Vector(101, 24, 0)), False)
sketch9.addGeometry(Part.LineSegment(Vector(101, 24, 0), Vector(-94, 24, 0)), False)
sketch9.addConstraint(Sketcher.Constraint("Coincident", 0, 2, 1, 1))
sketch9.addConstraint(Sketcher.Constraint("Coincident", 1, 2, 2, 1))
sketch9.addConstraint(Sketcher.Constraint("Coincident", 2, 2, 3, 1))
sketch9.addConstraint(Sketcher.Constraint("Coincident", 3, 2, 0, 1))
sketch9.addConstraint(Sketcher.Constraint("Vertical", 0))
sketch9.addConstraint(Sketcher.Constraint("Horizontal", 1))
sketch9.addConstraint(Sketcher.Constraint("Vertical", 2))
sketch9.addConstraint(Sketcher.Constraint("Horizontal", 3))
sketch9.addConstraint(Sketcher.Constraint("DistanceY", 0, 2, 0, 1, Q("75.93685 mm")))
sketch9.addConstraint(Sketcher.Constraint("DistanceX", 1, 1, 1, 2, Q("195.110477 mm")))
sketch9.addConstraint(Sketcher.Constraint("DistanceX", 0, 2, -1, 1, Q("93.933731 mm")))
sketch9.addConstraint(Sketcher.Constraint("DistanceY", 0, 2, -1, 1, Q("51.965769 mm")))
pad9 = body8.newObject("PartDesign::Pad", "Pad008")
pad9.Profile = sketch9
pad9.Length = 5

doc.recompute()
